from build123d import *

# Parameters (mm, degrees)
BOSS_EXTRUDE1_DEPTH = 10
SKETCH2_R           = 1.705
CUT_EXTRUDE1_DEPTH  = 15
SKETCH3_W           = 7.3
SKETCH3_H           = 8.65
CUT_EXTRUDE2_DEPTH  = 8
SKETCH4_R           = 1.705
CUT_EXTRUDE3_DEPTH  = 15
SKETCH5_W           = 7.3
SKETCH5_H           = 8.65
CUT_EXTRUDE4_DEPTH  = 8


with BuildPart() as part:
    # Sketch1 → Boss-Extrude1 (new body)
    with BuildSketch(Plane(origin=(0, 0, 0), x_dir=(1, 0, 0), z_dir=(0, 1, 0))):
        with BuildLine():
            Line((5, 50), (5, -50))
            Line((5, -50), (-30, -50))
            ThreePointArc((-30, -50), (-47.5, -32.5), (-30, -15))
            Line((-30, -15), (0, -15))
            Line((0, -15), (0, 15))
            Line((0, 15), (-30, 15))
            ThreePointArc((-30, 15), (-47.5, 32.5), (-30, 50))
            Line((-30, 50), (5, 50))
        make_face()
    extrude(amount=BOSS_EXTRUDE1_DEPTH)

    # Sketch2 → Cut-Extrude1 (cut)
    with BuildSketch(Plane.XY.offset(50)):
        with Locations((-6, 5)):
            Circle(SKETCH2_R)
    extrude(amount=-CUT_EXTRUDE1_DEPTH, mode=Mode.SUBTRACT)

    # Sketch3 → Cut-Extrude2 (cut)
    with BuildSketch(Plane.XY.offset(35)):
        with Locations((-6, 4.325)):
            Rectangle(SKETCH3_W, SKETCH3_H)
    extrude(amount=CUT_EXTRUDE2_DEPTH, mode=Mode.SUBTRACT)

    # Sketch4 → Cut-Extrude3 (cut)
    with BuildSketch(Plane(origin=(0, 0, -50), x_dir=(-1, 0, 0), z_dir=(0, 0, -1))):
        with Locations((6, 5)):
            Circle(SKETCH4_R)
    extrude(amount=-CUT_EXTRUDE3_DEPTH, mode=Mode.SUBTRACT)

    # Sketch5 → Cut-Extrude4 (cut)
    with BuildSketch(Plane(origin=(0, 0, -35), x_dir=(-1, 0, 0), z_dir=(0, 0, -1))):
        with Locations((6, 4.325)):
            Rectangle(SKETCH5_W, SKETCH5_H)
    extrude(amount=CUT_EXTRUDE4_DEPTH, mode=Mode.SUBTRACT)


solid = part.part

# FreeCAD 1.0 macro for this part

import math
import FreeCAD as App
import Part
import Sketcher
from FreeCAD import Vector
Q = App.Units.Quantity


def add_polygon(sketch, points):
    """Adds a closed chain of lines whose ends are joined by coincident constraints."""
    first, n = sketch.GeometryCount, len(points)
    for a, b in zip(points, points[1:] + points[:1]):
        sketch.addGeometry(Part.LineSegment(App.Vector(*a, 0), App.Vector(*b, 0)), False)
    for i in range(n):
        sketch.addConstraint(Sketcher.Constraint("Coincident", first + i, 2, first + (i + 1) % n, 1))

doc = App.newDocument("Part")
body = doc.addObject("PartDesign::Body", "Body")

# Sketch on XZ plane
sketch1 = body.newObject("Sketcher::SketchObject", "Sketch")
sketch1.AttachmentSupport = (doc.getObject("XZ_Plane"), [""])
sketch1.MapMode = "FlatFace"
sketch1.addGeometry(Part.LineSegment(Vector(5, 50, 0), Vector(5, -50, 0)), False)
sketch1.addGeometry(Part.LineSegment(Vector(5, -50, 0), Vector(-30, -50, 0)), False)
sketch1.addGeometry(Part.ArcOfCircle(Part.Circle(Vector(-30, -32, 0), Vector(0, 0, 1), 18), math.radians(90), math.radians(270)), False)
sketch1.addGeometry(Part.LineSegment(Vector(-30, -15, 0), Vector(0, -15, 0)), False)
sketch1.addGeometry(Part.LineSegment(Vector(0, -15, 0), Vector(0, 15, 0)), False)
sketch1.addGeometry(Part.LineSegment(Vector(0, 15, 0), Vector(-30, 15, 0)), False)
sketch1.addGeometry(Part.ArcOfCircle(Part.Circle(Vector(-30, 32, 0), Vector(0, 0, 1), 18), math.radians(90), math.radians(270)), False)
sketch1.addGeometry(Part.LineSegment(Vector(-30, 50, 0), Vector(5, 50, 0)), False)
sketch1.addConstraint(Sketcher.Constraint("Coincident", 0, 2, 1, 1))
sketch1.addConstraint(Sketcher.Constraint("Tangent", 1, 2, 2, 2))
sketch1.addConstraint(Sketcher.Constraint("Tangent", 2, 1, 3, 1))
sketch1.addConstraint(Sketcher.Constraint("Coincident", 3, 2, 4, 1))
sketch1.addConstraint(Sketcher.Constraint("Coincident", 4, 2, 5, 1))
sketch1.addConstraint(Sketcher.Constraint("Tangent", 5, 2, 6, 2))
sketch1.addConstraint(Sketcher.Constraint("Tangent", 6, 1, 7, 1))
sketch1.addConstraint(Sketcher.Constraint("Coincident", 7, 2, 0, 1))
sketch1.addConstraint(Sketcher.Constraint("Vertical", 0))
sketch1.addConstraint(Sketcher.Constraint("Horizontal", 1))
sketch1.addConstraint(Sketcher.Constraint("Horizontal", 3))
sketch1.addConstraint(Sketcher.Constraint("Vertical", 4))
sketch1.addConstraint(Sketcher.Constraint("Horizontal", 5))
sketch1.addConstraint(Sketcher.Constraint("Horizontal", 7))
sketch1.addConstraint(Sketcher.Constraint("Equal", 2, 6))
sketch1.addConstraint(Sketcher.Constraint("Symmetric", 3, 2, 4, 2, -1, 1))
sketch1.addConstraint(Sketcher.Constraint("Vertical", 2, 3, 6, 3))
sketch1.addConstraint(Sketcher.Constraint("Equal", 5, 4))
sketch1.addConstraint(Sketcher.Constraint("Radius", 2, Q("17.5 mm")))
sketch1.addConstraint(Sketcher.Constraint("DistanceX", 1, 2, 1, 1, Q("35 mm")))
sketch1.addConstraint(Sketcher.Constraint("DistanceX", 3, 1, 3, 2, Q("30 mm")))
pad1 = body.newObject("PartDesign::Pad", "Pad")
pad1.Profile = sketch1
pad1.Length = 10
pad1.Reversed = True

# Sketch on XY plane
sketch2 = body.newObject("Sketcher::SketchObject", "Sketch001")
sketch2.AttachmentSupport = (doc.getObject("XY_Plane"), [""])
sketch2.MapMode = "FlatFace"
sketch2.AttachmentOffset = App.Placement(Vector(0, 0, 50), App.Rotation())
sketch2.addGeometry(Part.Circle(Vector(-6, 5, 0), Vector(0, 0, 1), 1.7), False)
sketch2.addConstraint(Sketcher.Constraint("Diameter", 0, Q("3.41 mm")))
sketch2.addConstraint(Sketcher.Constraint("DistanceX", 0, 3, -1, 1, Q("6 mm")))
sketch2.addConstraint(Sketcher.Constraint("DistanceY", -1, 1, 0, 3, Q("5 mm")))
pocket1 = body.newObject("PartDesign::Pocket", "Pocket")
pocket1.Profile = sketch2
pocket1.Length = 15

# Sketch on XY plane
sketch3 = body.newObject("Sketcher::SketchObject", "Sketch002")
sketch3.AttachmentSupport = (doc.getObject("XY_Plane"), [""])
sketch3.MapMode = "FlatFace"
sketch3.AttachmentOffset = App.Placement(Vector(0, 0, 35), App.Rotation())
add_polygon(sketch3, [(-10, 9), (-10, 0), (-2, 0), (-2, 9)])  # lines 0-3
sketch3.addConstraint(Sketcher.Constraint("Vertical", 0))
sketch3.addConstraint(Sketcher.Constraint("Horizontal", 1))
sketch3.addConstraint(Sketcher.Constraint("Vertical", 2))
sketch3.addConstraint(Sketcher.Constraint("Horizontal", 3))
sketch3.addConstraint(Sketcher.Constraint("PointOnObject", 0, 2, -1))
sketch3.addConstraint(Sketcher.Constraint("DistanceX", 1, 1, 1, 2, Q("7.3 mm")))
sketch3.addConstraint(Sketcher.Constraint("DistanceY", 0, 2, 0, 1, Q("8.65 mm")))
sketch3.addConstraint(Sketcher.Constraint("DistanceX", 0, 2, -1, 1, Q("9.65 mm")))
pocket2 = body.newObject("PartDesign::Pocket", "Pocket001")
pocket2.Profile = sketch3
pocket2.Length = 8
pocket2.Reversed = True

# Sketch on XY plane
sketch4 = body.newObject("Sketcher::SketchObject", "Sketch003")
sketch4.AttachmentSupport = (doc.getObject("XY_Plane"), [""])
sketch4.MapMode = "FlatFace"
sketch4.AttachmentOffset = App.Placement(Vector(0, 0, -50), App.Rotation())
sketch4.addGeometry(Part.Circle(Vector(-6, 5, 0), Vector(0, 0, 1), 1.7), False)
sketch4.addConstraint(Sketcher.Constraint("Diameter", 0, Q("3.41 mm")))
sketch4.addConstraint(Sketcher.Constraint("DistanceX", 0, 3, -1, 1, Q("6 mm")))
sketch4.addConstraint(Sketcher.Constraint("DistanceY", -1, 1, 0, 3, Q("5 mm")))
pocket3 = body.newObject("PartDesign::Pocket", "Pocket002")
pocket3.Profile = sketch4
pocket3.Length = 15
pocket3.Reversed = True

# Sketch on XY plane
sketch5 = body.newObject("Sketcher::SketchObject", "Sketch004")
sketch5.AttachmentSupport = (doc.getObject("XY_Plane"), [""])
sketch5.MapMode = "FlatFace"
sketch5.AttachmentOffset = App.Placement(Vector(0, 0, -35), App.Rotation())
add_polygon(sketch5, [(-2, 9), (-2, 0), (-10, 0), (-10, 9)])  # lines 0-3
sketch5.addConstraint(Sketcher.Constraint("Vertical", 0))
sketch5.addConstraint(Sketcher.Constraint("Horizontal", 1))
sketch5.addConstraint(Sketcher.Constraint("Vertical", 2))
sketch5.addConstraint(Sketcher.Constraint("Horizontal", 3))
sketch5.addConstraint(Sketcher.Constraint("PointOnObject", 0, 2, -1))
sketch5.addConstraint(Sketcher.Constraint("DistanceX", 1, 2, 1, 1, Q("7.3 mm")))
sketch5.addConstraint(Sketcher.Constraint("DistanceY", 0, 2, 0, 1, Q("8.65 mm")))
sketch5.addConstraint(Sketcher.Constraint("DistanceX", 0, 2, -1, 1, Q("2.35 mm")))
pocket4 = body.newObject("PartDesign::Pocket", "Pocket003")
pocket4.Profile = sketch5
pocket4.Length = 8

doc.recompute()
